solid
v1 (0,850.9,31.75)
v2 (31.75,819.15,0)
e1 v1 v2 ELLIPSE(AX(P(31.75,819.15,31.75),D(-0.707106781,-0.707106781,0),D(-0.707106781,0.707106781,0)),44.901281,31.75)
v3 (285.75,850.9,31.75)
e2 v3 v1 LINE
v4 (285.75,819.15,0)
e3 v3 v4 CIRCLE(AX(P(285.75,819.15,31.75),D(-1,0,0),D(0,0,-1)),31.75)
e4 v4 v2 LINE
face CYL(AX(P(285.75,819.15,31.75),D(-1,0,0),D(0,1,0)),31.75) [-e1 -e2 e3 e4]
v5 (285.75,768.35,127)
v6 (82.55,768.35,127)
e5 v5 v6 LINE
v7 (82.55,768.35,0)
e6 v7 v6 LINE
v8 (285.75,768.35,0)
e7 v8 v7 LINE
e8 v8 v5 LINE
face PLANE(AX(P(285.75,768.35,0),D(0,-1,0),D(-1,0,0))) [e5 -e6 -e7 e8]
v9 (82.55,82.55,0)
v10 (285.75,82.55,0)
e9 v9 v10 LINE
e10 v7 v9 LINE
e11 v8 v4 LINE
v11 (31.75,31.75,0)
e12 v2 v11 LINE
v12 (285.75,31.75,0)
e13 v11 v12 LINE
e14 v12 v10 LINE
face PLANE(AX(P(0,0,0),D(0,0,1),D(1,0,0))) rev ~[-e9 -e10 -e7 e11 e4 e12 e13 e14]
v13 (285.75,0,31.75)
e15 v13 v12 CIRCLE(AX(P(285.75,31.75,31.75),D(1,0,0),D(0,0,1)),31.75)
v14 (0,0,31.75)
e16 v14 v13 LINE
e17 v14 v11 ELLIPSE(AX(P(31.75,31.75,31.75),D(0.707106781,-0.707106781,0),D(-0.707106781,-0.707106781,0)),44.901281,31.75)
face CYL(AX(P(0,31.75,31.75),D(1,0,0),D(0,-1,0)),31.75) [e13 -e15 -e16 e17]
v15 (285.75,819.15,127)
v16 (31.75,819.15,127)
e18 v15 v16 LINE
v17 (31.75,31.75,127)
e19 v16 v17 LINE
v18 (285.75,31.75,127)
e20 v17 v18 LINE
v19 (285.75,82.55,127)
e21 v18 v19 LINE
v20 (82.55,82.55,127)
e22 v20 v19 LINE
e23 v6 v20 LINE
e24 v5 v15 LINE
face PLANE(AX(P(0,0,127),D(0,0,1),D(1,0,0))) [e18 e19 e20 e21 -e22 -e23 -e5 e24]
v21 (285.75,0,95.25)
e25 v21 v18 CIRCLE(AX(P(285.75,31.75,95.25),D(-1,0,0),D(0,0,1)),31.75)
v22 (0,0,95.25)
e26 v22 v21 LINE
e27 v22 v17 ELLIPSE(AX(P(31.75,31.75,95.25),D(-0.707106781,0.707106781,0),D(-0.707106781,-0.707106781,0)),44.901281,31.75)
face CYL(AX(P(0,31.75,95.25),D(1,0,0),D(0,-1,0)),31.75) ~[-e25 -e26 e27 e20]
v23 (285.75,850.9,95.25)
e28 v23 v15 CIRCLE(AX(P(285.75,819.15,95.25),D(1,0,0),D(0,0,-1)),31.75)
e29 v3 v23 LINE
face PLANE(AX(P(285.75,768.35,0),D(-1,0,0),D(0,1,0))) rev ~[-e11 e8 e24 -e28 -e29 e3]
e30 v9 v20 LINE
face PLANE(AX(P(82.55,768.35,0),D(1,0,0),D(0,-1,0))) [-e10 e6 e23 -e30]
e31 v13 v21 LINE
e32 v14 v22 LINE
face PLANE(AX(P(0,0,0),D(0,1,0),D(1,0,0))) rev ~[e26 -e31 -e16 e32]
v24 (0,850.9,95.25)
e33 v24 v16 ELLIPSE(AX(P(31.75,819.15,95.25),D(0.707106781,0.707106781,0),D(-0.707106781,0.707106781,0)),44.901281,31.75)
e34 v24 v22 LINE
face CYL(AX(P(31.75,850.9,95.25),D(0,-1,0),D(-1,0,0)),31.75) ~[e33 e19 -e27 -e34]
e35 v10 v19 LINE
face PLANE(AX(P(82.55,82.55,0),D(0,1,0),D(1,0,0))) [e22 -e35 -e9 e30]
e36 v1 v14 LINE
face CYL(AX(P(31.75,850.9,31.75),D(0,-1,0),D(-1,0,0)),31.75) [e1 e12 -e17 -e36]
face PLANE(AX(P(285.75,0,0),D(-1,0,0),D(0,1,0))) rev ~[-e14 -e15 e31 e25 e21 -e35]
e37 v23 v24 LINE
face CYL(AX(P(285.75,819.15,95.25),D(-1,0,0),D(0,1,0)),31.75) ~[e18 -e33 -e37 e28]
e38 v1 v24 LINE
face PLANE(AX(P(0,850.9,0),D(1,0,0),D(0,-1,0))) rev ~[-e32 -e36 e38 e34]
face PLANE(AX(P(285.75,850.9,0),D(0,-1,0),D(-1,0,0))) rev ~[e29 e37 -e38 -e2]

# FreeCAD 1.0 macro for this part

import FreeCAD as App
import Part
import Sketcher
from FreeCAD import Vector
Q = App.Units.Quantity


def edges_at(feature, points):
    """Names of the edges that pass closest to the given points."""
    edges = feature.Shape.Edges
    near = lambda p: min(range(len(edges)), key=lambda i: edges[i].distToShape(Part.Vertex(*p))[0])
    return sorted({f"Edge{near(p) + 1}" for p in points})

doc = App.newDocument("Part")
params = doc.addObject("Spreadsheet::Sheet", "Params")
for row, (alias, value) in enumerate([
    ("sketch1_width", "8 in"),
    ("sketch1_height", "27 in"),
    ("sketch1_height2", "3.25 in"),
    ("pad1_length", "5 in"),
    ("fillet_radius", "1.25 in"),
], start=1):
    params.set(f"A{row}", alias)
    params.set(f"B{row}", "=" + value)
    params.setAlias(f"B{row}", alias)

body = doc.addObject("PartDesign::Body", "Body")

sketch1 = body.newObject("Sketcher::SketchObject", "Sketch")
sketch1.AttachmentSupport = (doc.getObject("XY_Plane"), [""])
sketch1.MapMode = "FlatFace"
sketch1.addGeometry([
    Part.LineSegment(Vector(0, 851, 0), Vector(0, 0, 0)),
    Part.LineSegment(Vector(0, 0, 0), Vector(286, 0, 0)),
    Part.LineSegment(Vector(286, 0, 0), Vector(286, 83, 0)),
    Part.LineSegment(Vector(286, 83, 0), Vector(83, 83, 0)),
    Part.LineSegment(Vector(83, 83, 0), Vector(83, 768, 0)),
    Part.LineSegment(Vector(83, 768, 0), Vector(286, 768, 0)),
    Part.LineSegment(Vector(286, 768, 0), Vector(286, 851, 0)),
    Part.LineSegment(Vector(286, 851, 0), Vector(0, 851, 0)),
], False)
sketch1.addConstraint([
    Sketcher.Constraint("Coincident", 0, 2, 1, 1),
    Sketcher.Constraint("Coincident", 1, 2, 2, 1),
    Sketcher.Constraint("Coincident", 2, 2, 3, 1),
    Sketcher.Constraint("Coincident", 3, 2, 4, 1),
    Sketcher.Constraint("Coincident", 4, 2, 5, 1),
    Sketcher.Constraint("Coincident", 5, 2, 6, 1),
    Sketcher.Constraint("Coincident", 6, 2, 7, 1),
    Sketcher.Constraint("Coincident", 7, 2, 0, 1),
    Sketcher.Constraint("Vertical", 0),
    Sketcher.Constraint("Horizontal", 1),
    Sketcher.Constraint("Vertical", 2),
    Sketcher.Constraint("Horizontal", 3),
    Sketcher.Constraint("Vertical", 4),
    Sketcher.Constraint("Horizontal", 5),
    Sketcher.Constraint("Vertical", 6),
    Sketcher.Constraint("Horizontal", 7),
    Sketcher.Constraint("Coincident", 0, 2, -1, 1),
    Sketcher.Constraint("Vertical", 2, 2, 5, 2),
    Sketcher.Constraint("Equal", 2, 6),
    Sketcher.Constraint("DistanceX", 3, 2, 3, 1, Q("8 in")),
    Sketcher.Constraint("DistanceY", 4, 1, 4, 2, Q("27 in")),
    Sketcher.Constraint("DistanceY", 2, 1, 2, 2, Q("3.25 in")),
    Sketcher.Constraint("DistanceX", -1, 1, 3, 2, Q("3.25 in")),
])
sketch1.setExpression("Constraints[19]", "Params.sketch1_width")
sketch1.setExpression("Constraints[20]", "Params.sketch1_height")
sketch1.setExpression("Constraints[21]", "Params.sketch1_height2")
pad1 = body.newObject("PartDesign::Pad", "Pad")
pad1.Profile = sketch1
pad1.setExpression("Length", "Params.pad1_length")
doc.recompute()

fillet = body.newObject("PartDesign::Fillet", "Fillet")
fillet.Base = (pad1, edges_at(pad1, [
    (142.875, 850.9, 127),
    (142.875, 850.9, 0),
    (0, 425.45, 127),
    (0, 425.45, 0),
    (142.875, 0, 127),
    (142.875, 0, 0),
]))
fillet.setExpression("Radius", "Params.fillet_radius")

doc.recompute()
